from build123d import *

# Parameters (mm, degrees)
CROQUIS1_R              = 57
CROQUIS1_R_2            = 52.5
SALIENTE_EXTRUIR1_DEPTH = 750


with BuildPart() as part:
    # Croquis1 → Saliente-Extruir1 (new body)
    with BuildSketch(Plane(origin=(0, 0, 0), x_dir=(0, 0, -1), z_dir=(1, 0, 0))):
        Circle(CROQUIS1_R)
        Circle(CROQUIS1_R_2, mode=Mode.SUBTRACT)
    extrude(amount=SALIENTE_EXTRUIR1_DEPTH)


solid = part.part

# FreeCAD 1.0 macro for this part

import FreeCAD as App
import Part
import Sketcher

V = App.Vector
Q = App.Units.Quantity

doc = App.newDocument("Part")
body = doc.addObject("PartDesign::Body", "Body")

sketch1 = body.newObject("Sketcher::SketchObject", "Sketch")
sketch1.AttachmentSupport = (doc.getObject("YZ_Plane"), [""])
sketch1.MapMode = "FlatFace"
sketch1.addGeometry([
    Part.Circle(V(0, 0, 0), V(0, 0, 1), 57),
    Part.Circle(V(0, 0, 0), V(0, 0, 1), 52),
], False)
sketch1.addConstraint([
    Sketcher.Constraint("Coincident", 0, 3, -1, 1),
    Sketcher.Constraint("Coincident", 1, 3, -1, 1),
    Sketcher.Constraint("Diameter", 0, Q("114 mm")),
    Sketcher.Constraint("Diameter", 1, Q("105 mm")),
])
pad1 = body.newObject("PartDesign::Pad", "Pad")
pad1.Profile = sketch1
pad1.Length = 750

doc.recompute()
